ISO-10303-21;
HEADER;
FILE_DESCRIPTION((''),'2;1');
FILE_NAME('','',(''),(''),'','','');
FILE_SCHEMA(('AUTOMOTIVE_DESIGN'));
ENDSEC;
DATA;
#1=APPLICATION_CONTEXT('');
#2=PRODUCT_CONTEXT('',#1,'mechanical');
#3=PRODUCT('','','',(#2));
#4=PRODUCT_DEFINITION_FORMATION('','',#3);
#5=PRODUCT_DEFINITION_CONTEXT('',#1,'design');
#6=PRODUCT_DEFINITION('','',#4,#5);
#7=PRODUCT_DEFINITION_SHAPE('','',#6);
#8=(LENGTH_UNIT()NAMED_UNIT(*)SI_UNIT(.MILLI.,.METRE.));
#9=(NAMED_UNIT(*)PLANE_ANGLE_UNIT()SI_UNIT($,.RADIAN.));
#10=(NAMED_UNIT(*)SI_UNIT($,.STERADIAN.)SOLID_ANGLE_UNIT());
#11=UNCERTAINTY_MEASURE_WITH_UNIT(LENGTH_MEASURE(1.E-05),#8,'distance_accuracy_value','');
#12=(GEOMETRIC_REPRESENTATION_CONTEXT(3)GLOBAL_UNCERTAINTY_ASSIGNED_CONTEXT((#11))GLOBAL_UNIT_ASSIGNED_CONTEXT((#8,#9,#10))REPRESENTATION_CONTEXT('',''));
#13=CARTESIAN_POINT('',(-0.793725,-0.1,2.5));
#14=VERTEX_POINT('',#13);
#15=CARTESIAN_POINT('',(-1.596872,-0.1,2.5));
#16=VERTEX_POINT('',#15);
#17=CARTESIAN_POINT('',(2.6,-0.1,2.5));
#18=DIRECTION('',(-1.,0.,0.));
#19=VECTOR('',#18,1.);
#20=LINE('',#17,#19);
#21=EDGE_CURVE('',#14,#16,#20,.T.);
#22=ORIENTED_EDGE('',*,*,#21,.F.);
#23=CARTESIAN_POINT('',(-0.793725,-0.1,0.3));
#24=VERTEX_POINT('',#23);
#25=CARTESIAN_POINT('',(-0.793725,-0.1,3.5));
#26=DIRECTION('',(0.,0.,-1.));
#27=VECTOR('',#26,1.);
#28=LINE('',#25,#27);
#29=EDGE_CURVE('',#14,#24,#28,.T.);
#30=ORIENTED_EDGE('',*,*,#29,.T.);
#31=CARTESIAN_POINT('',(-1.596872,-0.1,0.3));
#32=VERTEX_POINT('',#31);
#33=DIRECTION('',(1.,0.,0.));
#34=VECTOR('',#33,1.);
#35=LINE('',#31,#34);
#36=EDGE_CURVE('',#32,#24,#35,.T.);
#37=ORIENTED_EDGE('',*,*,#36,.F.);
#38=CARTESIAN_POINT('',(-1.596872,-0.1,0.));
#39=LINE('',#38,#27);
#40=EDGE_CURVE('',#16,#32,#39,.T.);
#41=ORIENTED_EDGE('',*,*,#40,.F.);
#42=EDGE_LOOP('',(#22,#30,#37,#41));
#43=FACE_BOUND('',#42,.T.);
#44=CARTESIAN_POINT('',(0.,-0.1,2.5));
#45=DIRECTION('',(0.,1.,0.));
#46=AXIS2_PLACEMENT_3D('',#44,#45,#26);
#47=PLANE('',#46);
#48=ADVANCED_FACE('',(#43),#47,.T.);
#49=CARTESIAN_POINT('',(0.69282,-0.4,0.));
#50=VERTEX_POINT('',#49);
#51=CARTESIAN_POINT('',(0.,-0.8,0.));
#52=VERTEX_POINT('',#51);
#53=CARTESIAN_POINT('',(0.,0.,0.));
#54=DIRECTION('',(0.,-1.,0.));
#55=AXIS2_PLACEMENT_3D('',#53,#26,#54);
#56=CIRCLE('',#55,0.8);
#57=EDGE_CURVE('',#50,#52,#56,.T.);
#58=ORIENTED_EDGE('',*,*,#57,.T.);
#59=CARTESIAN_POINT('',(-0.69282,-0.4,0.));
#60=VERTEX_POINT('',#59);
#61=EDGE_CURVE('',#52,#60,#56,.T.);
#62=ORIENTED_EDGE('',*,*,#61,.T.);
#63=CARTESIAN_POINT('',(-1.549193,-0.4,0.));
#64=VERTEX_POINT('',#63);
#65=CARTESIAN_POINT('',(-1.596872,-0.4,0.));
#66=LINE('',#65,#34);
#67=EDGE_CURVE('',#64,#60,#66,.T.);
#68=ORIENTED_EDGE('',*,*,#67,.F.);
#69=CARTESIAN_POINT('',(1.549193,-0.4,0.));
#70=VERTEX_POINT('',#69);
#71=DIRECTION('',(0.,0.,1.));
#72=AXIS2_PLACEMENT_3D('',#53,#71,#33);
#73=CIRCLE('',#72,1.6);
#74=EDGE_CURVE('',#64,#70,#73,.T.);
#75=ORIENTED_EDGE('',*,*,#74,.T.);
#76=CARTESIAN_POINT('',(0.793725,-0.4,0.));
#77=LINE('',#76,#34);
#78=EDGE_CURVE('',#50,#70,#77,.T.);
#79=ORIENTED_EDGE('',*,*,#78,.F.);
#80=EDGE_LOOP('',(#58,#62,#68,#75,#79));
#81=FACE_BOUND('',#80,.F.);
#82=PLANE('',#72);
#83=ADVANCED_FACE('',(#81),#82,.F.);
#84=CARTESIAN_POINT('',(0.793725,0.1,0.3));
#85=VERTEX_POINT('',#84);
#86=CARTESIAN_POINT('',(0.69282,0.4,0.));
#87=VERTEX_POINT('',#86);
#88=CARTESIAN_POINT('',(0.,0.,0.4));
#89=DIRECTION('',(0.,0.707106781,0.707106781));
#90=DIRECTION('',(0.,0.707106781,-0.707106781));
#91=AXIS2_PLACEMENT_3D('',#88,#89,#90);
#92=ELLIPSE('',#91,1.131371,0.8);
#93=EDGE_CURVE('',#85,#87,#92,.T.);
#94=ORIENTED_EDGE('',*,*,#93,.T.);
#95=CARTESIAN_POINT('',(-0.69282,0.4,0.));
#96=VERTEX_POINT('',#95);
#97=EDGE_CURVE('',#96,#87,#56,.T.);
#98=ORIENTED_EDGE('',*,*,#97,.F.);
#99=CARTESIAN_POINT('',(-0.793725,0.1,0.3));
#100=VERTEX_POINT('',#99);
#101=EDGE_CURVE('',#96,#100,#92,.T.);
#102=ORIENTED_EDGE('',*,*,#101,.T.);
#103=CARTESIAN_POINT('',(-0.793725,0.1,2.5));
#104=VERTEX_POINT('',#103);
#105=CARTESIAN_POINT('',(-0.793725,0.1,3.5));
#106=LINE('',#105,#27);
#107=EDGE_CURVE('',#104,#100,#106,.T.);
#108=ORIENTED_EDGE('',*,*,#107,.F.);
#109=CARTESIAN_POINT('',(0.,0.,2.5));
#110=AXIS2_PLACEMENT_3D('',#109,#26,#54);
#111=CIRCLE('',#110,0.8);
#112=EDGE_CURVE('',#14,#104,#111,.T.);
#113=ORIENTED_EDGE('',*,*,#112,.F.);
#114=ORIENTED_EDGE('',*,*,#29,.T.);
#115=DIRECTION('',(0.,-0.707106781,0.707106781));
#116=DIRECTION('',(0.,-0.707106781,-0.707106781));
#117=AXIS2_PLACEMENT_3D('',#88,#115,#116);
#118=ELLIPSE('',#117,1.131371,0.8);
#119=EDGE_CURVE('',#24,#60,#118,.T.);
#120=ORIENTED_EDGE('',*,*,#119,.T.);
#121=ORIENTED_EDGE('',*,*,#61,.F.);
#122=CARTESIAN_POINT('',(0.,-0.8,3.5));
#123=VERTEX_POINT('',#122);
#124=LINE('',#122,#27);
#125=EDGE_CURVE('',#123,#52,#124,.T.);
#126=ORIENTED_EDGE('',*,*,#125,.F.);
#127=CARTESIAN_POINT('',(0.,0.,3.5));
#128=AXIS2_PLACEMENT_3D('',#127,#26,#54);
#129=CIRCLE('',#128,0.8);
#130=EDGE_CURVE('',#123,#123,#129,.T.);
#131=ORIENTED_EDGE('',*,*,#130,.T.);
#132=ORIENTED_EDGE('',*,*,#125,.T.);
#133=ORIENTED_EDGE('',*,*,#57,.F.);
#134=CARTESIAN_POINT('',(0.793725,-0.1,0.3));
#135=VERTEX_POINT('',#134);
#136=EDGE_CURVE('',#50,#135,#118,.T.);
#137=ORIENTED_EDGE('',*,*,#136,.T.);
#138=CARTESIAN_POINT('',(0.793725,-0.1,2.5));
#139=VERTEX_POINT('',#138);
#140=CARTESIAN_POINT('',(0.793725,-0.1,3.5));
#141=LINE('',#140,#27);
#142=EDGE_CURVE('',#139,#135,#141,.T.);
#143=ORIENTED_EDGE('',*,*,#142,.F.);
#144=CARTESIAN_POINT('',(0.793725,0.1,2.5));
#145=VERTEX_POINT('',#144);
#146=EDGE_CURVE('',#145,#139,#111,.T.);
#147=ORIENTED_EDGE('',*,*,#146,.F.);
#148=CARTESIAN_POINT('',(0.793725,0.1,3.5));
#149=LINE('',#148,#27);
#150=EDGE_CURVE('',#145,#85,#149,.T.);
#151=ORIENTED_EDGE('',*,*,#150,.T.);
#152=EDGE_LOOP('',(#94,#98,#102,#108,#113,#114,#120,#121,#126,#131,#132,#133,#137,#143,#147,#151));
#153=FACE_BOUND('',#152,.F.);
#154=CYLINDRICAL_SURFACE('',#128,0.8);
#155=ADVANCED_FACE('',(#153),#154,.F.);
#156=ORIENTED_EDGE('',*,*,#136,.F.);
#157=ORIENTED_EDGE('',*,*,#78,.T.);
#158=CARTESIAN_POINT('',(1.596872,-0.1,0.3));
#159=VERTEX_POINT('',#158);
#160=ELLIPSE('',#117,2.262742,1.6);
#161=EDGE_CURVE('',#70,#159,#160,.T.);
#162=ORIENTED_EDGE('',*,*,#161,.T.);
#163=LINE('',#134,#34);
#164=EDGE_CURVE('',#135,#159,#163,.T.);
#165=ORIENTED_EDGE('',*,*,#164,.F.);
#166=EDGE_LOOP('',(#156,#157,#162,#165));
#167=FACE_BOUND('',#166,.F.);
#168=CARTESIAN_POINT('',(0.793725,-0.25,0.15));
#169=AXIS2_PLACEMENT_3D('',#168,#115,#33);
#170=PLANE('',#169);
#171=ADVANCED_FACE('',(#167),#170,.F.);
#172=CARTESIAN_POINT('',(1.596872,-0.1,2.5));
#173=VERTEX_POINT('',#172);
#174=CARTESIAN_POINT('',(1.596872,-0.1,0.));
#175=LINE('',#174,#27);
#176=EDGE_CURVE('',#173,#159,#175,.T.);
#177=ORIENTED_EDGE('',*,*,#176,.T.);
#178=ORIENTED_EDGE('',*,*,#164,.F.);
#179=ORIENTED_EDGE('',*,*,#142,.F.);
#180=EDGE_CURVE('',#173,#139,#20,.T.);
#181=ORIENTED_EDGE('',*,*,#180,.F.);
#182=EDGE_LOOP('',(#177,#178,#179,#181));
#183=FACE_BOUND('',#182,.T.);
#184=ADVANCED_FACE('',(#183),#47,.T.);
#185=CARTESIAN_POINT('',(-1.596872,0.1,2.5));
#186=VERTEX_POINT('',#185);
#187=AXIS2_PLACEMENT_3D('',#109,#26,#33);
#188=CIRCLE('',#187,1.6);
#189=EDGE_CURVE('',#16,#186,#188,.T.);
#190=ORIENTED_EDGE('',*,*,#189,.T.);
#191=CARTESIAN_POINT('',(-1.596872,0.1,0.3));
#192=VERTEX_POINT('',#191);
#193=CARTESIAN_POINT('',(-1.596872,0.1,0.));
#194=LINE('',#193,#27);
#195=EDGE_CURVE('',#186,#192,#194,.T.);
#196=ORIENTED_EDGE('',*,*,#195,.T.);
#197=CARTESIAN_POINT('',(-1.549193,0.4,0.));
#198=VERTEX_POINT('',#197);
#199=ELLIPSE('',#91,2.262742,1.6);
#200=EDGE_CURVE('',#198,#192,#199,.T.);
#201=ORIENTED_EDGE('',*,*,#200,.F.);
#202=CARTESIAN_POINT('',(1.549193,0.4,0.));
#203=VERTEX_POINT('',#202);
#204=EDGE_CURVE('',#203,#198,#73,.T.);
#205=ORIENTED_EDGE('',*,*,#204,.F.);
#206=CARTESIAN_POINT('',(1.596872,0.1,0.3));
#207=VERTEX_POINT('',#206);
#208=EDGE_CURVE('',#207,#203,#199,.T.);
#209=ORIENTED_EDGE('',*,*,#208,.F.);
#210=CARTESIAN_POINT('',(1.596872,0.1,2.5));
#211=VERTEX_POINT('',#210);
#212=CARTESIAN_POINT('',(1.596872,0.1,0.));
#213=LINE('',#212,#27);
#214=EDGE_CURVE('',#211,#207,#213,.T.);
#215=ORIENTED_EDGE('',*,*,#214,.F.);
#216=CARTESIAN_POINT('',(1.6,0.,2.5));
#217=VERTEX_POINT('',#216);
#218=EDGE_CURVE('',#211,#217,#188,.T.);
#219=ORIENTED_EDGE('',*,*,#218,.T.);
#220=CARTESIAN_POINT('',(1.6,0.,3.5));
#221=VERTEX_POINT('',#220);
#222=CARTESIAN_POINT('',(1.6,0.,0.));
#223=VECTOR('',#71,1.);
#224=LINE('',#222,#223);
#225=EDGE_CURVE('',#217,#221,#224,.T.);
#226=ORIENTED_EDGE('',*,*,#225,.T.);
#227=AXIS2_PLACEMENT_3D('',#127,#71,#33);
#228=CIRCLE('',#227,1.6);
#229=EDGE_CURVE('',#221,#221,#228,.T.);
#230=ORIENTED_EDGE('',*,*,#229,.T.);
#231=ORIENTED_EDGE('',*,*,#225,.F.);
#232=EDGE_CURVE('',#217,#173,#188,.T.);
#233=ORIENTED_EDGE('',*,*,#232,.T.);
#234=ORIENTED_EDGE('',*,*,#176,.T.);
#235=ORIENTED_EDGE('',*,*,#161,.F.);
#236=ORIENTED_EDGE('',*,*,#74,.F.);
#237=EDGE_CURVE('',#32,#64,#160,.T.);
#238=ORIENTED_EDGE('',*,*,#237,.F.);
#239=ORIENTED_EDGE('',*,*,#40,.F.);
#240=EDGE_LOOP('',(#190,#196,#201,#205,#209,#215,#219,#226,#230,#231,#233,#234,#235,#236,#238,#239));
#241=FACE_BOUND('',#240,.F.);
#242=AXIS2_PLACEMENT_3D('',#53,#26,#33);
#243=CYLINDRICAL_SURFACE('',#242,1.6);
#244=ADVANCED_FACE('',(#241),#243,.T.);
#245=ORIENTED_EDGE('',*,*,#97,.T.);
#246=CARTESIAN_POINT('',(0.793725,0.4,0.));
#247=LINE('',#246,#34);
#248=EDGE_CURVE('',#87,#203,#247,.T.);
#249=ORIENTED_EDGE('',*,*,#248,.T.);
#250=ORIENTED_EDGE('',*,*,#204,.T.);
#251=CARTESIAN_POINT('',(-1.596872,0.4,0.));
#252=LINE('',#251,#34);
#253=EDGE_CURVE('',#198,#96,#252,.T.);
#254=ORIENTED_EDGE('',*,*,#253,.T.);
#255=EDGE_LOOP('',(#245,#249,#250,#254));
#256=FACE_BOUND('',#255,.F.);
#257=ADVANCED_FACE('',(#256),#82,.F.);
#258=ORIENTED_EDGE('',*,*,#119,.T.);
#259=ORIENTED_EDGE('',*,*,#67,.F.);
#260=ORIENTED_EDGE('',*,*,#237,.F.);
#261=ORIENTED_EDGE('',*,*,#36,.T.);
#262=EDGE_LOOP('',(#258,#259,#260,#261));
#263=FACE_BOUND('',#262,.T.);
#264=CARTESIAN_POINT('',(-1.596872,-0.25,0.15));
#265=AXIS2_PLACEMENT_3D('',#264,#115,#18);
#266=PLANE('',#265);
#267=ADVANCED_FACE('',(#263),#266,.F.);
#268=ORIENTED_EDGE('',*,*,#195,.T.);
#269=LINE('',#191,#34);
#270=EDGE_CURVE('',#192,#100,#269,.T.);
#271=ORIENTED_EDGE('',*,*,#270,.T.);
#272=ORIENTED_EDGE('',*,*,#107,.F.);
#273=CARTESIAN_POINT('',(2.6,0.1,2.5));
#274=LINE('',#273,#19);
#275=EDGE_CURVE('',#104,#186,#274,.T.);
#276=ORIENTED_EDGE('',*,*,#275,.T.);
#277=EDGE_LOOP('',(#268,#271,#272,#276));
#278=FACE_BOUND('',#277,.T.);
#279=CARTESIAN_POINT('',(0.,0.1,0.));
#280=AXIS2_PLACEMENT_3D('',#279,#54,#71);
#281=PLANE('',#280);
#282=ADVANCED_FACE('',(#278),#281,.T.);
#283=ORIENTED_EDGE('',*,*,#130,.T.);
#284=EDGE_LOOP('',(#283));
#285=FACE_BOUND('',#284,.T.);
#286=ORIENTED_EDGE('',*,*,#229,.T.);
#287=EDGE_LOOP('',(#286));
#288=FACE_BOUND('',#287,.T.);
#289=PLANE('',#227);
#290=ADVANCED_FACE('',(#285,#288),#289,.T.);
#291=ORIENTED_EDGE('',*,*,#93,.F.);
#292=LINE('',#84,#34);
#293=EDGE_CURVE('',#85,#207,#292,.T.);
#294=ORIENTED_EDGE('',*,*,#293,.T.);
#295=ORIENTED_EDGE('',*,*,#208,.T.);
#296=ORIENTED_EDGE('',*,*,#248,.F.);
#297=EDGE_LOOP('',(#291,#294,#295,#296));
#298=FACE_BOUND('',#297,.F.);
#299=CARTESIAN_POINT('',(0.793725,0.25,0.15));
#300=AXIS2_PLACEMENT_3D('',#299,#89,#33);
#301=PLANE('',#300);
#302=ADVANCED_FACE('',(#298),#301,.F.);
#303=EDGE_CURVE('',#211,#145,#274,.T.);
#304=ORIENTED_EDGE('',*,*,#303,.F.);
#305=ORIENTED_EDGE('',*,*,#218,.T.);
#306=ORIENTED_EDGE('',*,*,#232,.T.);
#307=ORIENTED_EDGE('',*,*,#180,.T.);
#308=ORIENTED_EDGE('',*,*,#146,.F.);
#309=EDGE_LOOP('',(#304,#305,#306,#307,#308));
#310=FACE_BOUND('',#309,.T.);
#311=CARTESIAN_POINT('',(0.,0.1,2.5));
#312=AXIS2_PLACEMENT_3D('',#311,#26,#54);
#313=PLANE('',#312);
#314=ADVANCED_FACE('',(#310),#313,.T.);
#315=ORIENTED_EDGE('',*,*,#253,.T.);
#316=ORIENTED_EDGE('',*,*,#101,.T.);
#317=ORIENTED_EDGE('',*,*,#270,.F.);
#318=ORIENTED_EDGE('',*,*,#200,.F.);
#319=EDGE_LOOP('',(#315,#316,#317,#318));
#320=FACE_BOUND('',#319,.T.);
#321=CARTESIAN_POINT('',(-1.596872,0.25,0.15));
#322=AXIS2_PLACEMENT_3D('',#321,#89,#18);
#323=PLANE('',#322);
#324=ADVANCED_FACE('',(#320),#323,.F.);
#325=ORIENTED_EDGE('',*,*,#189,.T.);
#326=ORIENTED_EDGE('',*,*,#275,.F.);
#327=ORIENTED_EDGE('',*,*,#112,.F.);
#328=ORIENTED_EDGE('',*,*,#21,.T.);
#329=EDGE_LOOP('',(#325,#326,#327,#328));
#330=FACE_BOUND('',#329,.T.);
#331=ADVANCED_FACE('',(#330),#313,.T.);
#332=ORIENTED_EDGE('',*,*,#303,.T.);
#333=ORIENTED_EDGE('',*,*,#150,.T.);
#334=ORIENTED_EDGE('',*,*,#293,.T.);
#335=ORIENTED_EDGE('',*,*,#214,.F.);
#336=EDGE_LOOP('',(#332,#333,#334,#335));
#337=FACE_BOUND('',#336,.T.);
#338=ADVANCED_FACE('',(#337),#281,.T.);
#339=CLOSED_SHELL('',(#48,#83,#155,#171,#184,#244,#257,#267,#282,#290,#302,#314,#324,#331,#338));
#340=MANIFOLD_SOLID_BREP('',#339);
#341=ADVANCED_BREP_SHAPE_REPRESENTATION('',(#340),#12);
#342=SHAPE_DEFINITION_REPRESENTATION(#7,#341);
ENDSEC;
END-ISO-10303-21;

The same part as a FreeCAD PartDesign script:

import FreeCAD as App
import Part
import Sketcher

V = App.Vector
Q = App.Units.Quantity


def edges_at(feature, points):
    """Names of the edges that pass closest to the given points."""
    edges = feature.Shape.Edges
    near = lambda p: min(range(len(edges)), key=lambda i: edges[i].distToShape(Part.Vertex(*p))[0])
    return sorted({f"Edge{near(p) + 1}" for p in points})


def add_polygon(sketch, points):
    """Adds a closed chain of lines whose ends are joined by coincident constraints."""
    first, n = sketch.GeometryCount, len(points)
    for a, b in zip(points, points[1:] + points[:1]):
        sketch.addGeometry(Part.LineSegment(App.Vector(*a, 0), App.Vector(*b, 0)), False)
    for i in range(n):
        sketch.addConstraint(Sketcher.Constraint("Coincident", first + i, 2, first + (i + 1) % n, 1))

doc = App.newDocument("Part")
params = doc.addObject("Spreadsheet::Sheet", "Params")
for row, (alias, value) in enumerate([
    ("sketch1_diameter", "3.2 mm"),
    ("pad1_length", "3.5 mm"),
    ("sketch2_diameter", "1.3 mm"),
    ("hole_diameter", "1.3 mm"),
    ("hole_cbore_diameter", "1.6 mm"),
    ("hole_cbore_depth", "4 mm"),
    ("sketch3_width", "0.2 mm"),
    ("sketch3_height", "2.5 mm"),
    ("chamfer_size", "0.3 mm"),
], start=1):
    params.set(f"A{row}", alias)
    params.set(f"B{row}", "=" + value)
    params.setAlias(f"B{row}", alias)

body = doc.addObject("PartDesign::Body", "Body")

sketch1 = body.newObject("Sketcher::SketchObject", "Sketch")
sketch1.AttachmentSupport = (doc.getObject("XY_Plane"), [""])
sketch1.MapMode = "FlatFace"
sketch1.addGeometry(Part.Circle(V(0, 0, 0), V(0, 0, 1), 1.6), False)
sketch1.addConstraint([
    Sketcher.Constraint("Coincident", 0, 3, -1, 1),
    Sketcher.Constraint("Diameter", 0, Q("3.2 mm")),
])
sketch1.setExpression("Constraints[1]", "Params.sketch1_diameter")
pad1 = body.newObject("PartDesign::Pad", "Pad")
pad1.Profile = sketch1
pad1.setExpression("Length", "Params.pad1_length")

sketch2 = body.newObject("Sketcher::SketchObject", "Sketch001")
sketch2.AttachmentSupport = (doc.getObject("XY_Plane"), [""])
sketch2.MapMode = "FlatFace"
sketch2.AttachmentOffset = App.Placement(V(0, 0, 3.5), App.Rotation())
sketch2.addGeometry(Part.Circle(V(0, 0, 0), V(0, 0, 1), 0.7), False)
sketch2.addConstraint([
    Sketcher.Constraint("Coincident", 0, 3, -1, 1),
    Sketcher.Constraint("Diameter", 0, Q("1.3 mm")),
])
sketch2.setExpression("Constraints[1]", "Params.sketch2_diameter")
doc.recompute()
hole = body.newObject("PartDesign::Hole", "Hole")
hole.Profile = sketch2
hole.ThreadType = "None"
hole.setExpression("Diameter", "Params.hole_diameter")
hole.DepthType = "ThroughAll"
hole.HoleCutType = "Counterbore"
hole.setExpression("HoleCutDiameter", "Params.hole_cbore_diameter")
hole.setExpression("HoleCutDepth", "Params.hole_cbore_depth")

sketch3 = body.newObject("Sketcher::SketchObject", "Sketch002")
sketch3.AttachmentSupport = (doc.getObject("YZ_Plane"), [""])
sketch3.MapMode = "FlatFace"
add_polygon(sketch3, [(-0.1, 2.5), (-0.1, 0), (0.1, 0), (0.1, 2.5)])
sketch3.addConstraint([
    Sketcher.Constraint("Vertical", 0),
    Sketcher.Constraint("Horizontal", 1),
    Sketcher.Constraint("Vertical", 2),
    Sketcher.Constraint("Horizontal", 3),
    Sketcher.Constraint("Symmetric", 0, 2, 1, 2, -1, 1),
    Sketcher.Constraint("DistanceX", 1, 1, 1, 2, Q("0.2 mm")),
    Sketcher.Constraint("DistanceY", 0, 2, 0, 1, Q("2.5 mm")),
])
sketch3.setExpression("Constraints[9]", "Params.sketch3_width")
sketch3.setExpression("Constraints[10]", "Params.sketch3_height")
pocket1 = body.newObject("PartDesign::Pocket", "Pocket")
pocket1.Profile = sketch3
pocket1.Type = "ThroughAll"
pocket1.Midplane = True
doc.recompute()

chamfer = body.newObject("PartDesign::Chamfer", "Chamfer")
chamfer.Base = (pocket1, edges_at(pocket1, [
    (1.195, 0.1, 0),
    (-1.195, 0.1, 0),
    (-1.195, -0.1, 0),
    (1.195, -0.1, 0),
]))
chamfer.setExpression("Size", "Params.chamfer_size")

doc.recompute()
